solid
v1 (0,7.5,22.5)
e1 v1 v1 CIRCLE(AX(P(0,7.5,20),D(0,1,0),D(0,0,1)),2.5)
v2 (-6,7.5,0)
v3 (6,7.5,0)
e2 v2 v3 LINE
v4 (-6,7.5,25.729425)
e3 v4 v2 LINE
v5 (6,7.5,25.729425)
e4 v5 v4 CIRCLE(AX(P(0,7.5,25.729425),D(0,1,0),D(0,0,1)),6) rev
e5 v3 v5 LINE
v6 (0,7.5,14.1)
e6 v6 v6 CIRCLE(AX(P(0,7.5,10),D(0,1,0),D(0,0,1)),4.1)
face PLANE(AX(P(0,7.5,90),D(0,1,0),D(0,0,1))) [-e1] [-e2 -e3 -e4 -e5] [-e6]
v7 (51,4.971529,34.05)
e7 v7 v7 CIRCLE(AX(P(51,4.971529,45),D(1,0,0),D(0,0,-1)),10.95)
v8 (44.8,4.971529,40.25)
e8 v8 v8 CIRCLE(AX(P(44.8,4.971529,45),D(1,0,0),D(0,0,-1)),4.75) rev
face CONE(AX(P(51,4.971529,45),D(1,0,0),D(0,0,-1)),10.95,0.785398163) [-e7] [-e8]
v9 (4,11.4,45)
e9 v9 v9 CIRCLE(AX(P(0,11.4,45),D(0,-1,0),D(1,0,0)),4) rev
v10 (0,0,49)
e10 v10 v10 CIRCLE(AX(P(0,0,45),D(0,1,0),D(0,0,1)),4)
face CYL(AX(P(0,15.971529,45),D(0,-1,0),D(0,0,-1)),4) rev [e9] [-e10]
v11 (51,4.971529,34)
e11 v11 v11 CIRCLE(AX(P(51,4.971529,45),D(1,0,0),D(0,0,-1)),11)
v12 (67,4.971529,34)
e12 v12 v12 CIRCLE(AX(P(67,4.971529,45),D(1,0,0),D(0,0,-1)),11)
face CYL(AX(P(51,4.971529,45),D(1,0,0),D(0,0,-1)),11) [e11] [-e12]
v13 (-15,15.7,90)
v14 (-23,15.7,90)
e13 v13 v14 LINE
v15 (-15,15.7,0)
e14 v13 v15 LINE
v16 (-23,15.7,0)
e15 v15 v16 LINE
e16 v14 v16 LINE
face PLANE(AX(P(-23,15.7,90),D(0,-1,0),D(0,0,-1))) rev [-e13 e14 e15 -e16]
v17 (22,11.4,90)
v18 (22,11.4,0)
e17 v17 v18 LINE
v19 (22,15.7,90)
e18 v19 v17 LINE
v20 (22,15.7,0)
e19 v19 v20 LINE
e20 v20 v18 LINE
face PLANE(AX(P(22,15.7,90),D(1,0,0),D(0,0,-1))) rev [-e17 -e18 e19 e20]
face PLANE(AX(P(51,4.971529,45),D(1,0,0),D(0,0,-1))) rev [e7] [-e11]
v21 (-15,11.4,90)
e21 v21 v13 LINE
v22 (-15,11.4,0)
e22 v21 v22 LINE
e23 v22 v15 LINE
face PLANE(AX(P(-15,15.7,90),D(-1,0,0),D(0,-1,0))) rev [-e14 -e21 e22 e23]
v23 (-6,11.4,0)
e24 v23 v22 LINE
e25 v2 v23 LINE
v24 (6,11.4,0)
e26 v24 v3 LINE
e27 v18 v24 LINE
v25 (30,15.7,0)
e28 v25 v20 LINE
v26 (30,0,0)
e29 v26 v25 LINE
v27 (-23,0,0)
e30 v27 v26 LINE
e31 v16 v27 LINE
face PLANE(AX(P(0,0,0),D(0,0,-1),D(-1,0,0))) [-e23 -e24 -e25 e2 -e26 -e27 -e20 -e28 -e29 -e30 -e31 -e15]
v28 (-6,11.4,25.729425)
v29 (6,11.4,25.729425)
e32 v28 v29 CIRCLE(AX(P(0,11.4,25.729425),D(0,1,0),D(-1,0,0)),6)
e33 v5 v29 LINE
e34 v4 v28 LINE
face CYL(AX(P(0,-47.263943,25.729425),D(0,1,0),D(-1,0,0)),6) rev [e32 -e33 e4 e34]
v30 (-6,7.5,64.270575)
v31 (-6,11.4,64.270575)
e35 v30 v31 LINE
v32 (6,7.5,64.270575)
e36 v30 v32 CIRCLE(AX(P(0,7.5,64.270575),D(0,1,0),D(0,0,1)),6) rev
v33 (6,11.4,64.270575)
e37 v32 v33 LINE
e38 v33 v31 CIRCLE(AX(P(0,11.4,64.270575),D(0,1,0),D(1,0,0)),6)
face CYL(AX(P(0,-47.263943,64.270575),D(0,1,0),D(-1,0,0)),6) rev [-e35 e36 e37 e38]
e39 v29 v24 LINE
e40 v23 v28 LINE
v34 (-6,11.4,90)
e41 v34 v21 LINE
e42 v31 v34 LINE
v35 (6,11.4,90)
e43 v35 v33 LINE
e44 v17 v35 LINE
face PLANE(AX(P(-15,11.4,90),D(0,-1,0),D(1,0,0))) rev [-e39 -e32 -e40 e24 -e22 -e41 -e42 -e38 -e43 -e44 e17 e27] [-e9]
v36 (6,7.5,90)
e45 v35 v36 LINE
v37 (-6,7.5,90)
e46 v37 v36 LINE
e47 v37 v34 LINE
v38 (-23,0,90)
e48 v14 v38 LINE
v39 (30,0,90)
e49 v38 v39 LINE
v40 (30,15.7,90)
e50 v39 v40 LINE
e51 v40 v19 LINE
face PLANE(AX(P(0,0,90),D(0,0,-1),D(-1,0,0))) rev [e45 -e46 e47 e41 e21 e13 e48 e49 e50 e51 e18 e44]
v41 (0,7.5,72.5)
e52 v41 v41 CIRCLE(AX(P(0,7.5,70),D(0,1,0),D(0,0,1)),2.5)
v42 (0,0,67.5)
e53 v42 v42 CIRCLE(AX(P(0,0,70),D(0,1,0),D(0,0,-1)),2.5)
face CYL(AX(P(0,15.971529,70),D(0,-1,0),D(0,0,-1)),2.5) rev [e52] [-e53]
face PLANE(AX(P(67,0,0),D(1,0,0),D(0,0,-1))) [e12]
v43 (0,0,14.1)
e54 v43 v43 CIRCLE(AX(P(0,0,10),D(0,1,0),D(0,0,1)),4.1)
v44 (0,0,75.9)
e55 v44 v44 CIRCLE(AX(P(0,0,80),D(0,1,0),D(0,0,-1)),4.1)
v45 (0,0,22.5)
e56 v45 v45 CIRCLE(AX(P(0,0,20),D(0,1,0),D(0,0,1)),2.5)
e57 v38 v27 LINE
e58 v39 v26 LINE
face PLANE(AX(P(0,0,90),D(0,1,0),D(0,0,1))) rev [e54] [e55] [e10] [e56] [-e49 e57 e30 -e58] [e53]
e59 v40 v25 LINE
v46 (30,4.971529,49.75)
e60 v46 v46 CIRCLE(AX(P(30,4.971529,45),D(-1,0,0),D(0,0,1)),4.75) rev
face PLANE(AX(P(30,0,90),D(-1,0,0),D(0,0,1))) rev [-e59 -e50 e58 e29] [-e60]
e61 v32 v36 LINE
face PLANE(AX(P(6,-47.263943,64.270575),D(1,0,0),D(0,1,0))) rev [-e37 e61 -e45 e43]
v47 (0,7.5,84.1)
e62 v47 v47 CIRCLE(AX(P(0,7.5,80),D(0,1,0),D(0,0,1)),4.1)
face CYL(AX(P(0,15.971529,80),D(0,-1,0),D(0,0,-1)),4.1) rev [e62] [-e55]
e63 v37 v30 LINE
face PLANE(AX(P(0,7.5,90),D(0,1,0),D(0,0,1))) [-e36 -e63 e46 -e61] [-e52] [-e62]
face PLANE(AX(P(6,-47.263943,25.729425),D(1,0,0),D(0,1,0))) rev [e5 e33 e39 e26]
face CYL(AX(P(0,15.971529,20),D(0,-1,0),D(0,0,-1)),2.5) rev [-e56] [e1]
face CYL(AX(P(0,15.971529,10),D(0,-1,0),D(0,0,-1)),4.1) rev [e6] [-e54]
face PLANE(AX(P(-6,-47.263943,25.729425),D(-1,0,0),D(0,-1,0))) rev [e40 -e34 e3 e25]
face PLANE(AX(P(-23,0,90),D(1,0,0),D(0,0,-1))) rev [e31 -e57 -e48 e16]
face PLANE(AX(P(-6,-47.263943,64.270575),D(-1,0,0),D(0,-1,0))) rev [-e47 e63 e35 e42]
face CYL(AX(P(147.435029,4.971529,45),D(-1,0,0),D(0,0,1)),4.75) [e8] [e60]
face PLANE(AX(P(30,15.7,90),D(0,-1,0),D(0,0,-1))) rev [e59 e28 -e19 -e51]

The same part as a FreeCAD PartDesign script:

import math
import FreeCAD as App
import Part
import Sketcher


def edges_at(feature, points):
    """Names of the edges that pass closest to the given points."""
    edges = feature.Shape.Edges
    near = lambda p: min(range(len(edges)), key=lambda i: edges[i].distToShape(Part.Vertex(*p))[0])
    return sorted({f"Edge{near(p) + 1}" for p in points})

doc = App.newDocument("Part")
params = doc.addObject("Spreadsheet::Sheet", "Params")
for row, (alias, value) in enumerate([
    ("sketch1_width", "8 mm"),
    ("sketch1_width2", "37 mm"),
    ("sketch1_height", "15.7 mm"),
    ("sketch1_height2", "4.3 mm"),
    ("pad1_length", "90 mm"),
    ("sketch2_diameter", "9.5 mm"),
    ("pad2_length", "37 mm"),
    ("sketch3_diameter", "22 mm"),
    ("pad3_length", "16 mm"),
    ("chamfer_size", "6.2 mm"),
    ("sketch4_diameter", "8 mm"),
    ("sketch4_diameter2", "5 mm"),
    ("sketch4_diameter3", "8.2 mm"),
    ("sketch5_radius", "6 mm"),
    ("pocket2_length", "3.9 mm"),
], start=1):
    params.set(f"A{row}", alias)
    params.set(f"B{row}", "=" + value)
    params.setAlias(f"B{row}", alias)

body = doc.addObject("PartDesign::Body", "Body")

# Sketch on XY plane
sketch1 = body.newObject("Sketcher::SketchObject", "Sketch")
sketch1.AttachmentSupport = (doc.getObject("XY_Plane"), [""])
sketch1.MapMode = "FlatFace"
sketch1.addGeometry([
    Part.LineSegment(App.Vector(30, 0, 0), App.Vector(30, 15.7, 0)),  # 0
    Part.LineSegment(App.Vector(30, 15.7, 0), App.Vector(22, 15.7, 0)),  # 1
    Part.LineSegment(App.Vector(22, 15.7, 0), App.Vector(22, 11.4, 0)),  # 2
    Part.LineSegment(App.Vector(22, 11.4, 0), App.Vector(-15, 11.4, 0)),  # 3
    Part.LineSegment(App.Vector(-15, 11.4, 0), App.Vector(-15, 15.7, 0)),  # 4
    Part.LineSegment(App.Vector(-15, 15.7, 0), App.Vector(-23, 15.7, 0)),  # 5
    Part.LineSegment(App.Vector(-23, 15.7, 0), App.Vector(-23, 0, 0)),  # 6
    Part.LineSegment(App.Vector(-23, 0, 0), App.Vector(30, 0, 0)),  # 7
], False)
sketch1.addConstraint([
    Sketcher.Constraint("Coincident", 0, 2, 1, 1),
    Sketcher.Constraint("Coincident", 1, 2, 2, 1),
    Sketcher.Constraint("Coincident", 2, 2, 3, 1),
    Sketcher.Constraint("Coincident", 3, 2, 4, 1),
    Sketcher.Constraint("Coincident", 4, 2, 5, 1),
    Sketcher.Constraint("Coincident", 5, 2, 6, 1),
    Sketcher.Constraint("Coincident", 6, 2, 7, 1),
    Sketcher.Constraint("Coincident", 7, 2, 0, 1),
    Sketcher.Constraint("Vertical", 0),
    Sketcher.Constraint("Horizontal", 1),
    Sketcher.Constraint("Vertical", 2),
    Sketcher.Constraint("Horizontal", 3),
    Sketcher.Constraint("Vertical", 4),
    Sketcher.Constraint("Horizontal", 5),
    Sketcher.Constraint("Vertical", 6),
    Sketcher.Constraint("Horizontal", 7),
    Sketcher.Constraint("PointOnObject", 6, 2, -1),
    Sketcher.Constraint("Horizontal", 1, 2, 4, 2),
    Sketcher.Constraint("Equal", 1, 5),
    Sketcher.Constraint("DistanceX", 1, 2, 1, 1, 8.0),
    Sketcher.Constraint("DistanceX", 3, 2, 3, 1, 37.0),
    Sketcher.Constraint("DistanceY", 0, 1, 0, 2, 15.7),
    Sketcher.Constraint("DistanceY", 2, 2, 2, 1, 4.3),
    Sketcher.Constraint("DistanceX", -1, 1, 0, 2, 30.0),
])
sketch1.setExpression("Constraints[19]", "Params.sketch1_width")
sketch1.setExpression("Constraints[20]", "Params.sketch1_width2")
sketch1.setExpression("Constraints[21]", "Params.sketch1_height")
sketch1.setExpression("Constraints[22]", "Params.sketch1_height2")
pad1 = body.newObject("PartDesign::Pad", "Pad")
pad1.Profile = sketch1
pad1.setExpression("Length", "Params.pad1_length")

# Sketch on YZ plane
sketch2 = body.newObject("Sketcher::SketchObject", "Sketch001")
sketch2.AttachmentSupport = (doc.getObject("YZ_Plane"), [""])
sketch2.MapMode = "FlatFace"
sketch2.AttachmentOffset = App.Placement(App.Vector(0, 0, 30), App.Rotation())
sketch2.addGeometry(Part.Circle(App.Vector(5, 45, 0), App.Vector(0, 0, 1), 4.8), False)
sketch2.addConstraint([
    Sketcher.Constraint("Diameter", 0, 9.5),
    Sketcher.Constraint("DistanceY", -1, 1, 0, 3, 45.0),
    Sketcher.Constraint("DistanceX", -1, 1, 0, 3, 4.971529),
])
sketch2.setExpression("Constraints[0]", "Params.sketch2_diameter")
pad2 = body.newObject("PartDesign::Pad", "Pad001")
pad2.Profile = sketch2
pad2.setExpression("Length", "Params.pad2_length")

# Sketch on YZ plane
sketch3 = body.newObject("Sketcher::SketchObject", "Sketch002")
sketch3.AttachmentSupport = (doc.getObject("YZ_Plane"), [""])
sketch3.MapMode = "FlatFace"
sketch3.AttachmentOffset = App.Placement(App.Vector(0, 0, 67), App.Rotation())
sketch3.addGeometry(Part.Circle(App.Vector(5, 45, 0), App.Vector(0, 0, 1), 11), False)
sketch3.addConstraint([
    Sketcher.Constraint("Diameter", 0, 22.0),
    Sketcher.Constraint("DistanceY", -1, 1, 0, 3, 45.0),
    Sketcher.Constraint("DistanceX", -1, 1, 0, 3, 4.971529),
])
sketch3.setExpression("Constraints[0]", "Params.sketch3_diameter")
pad3 = body.newObject("PartDesign::Pad", "Pad002")
pad3.Profile = sketch3
pad3.setExpression("Length", "Params.pad3_length")
pad3.Reversed = True
doc.recompute()

chamfer = body.newObject("PartDesign::Chamfer", "Chamfer")
chamfer.Base = (pad3, edges_at(pad3, [(51, 4.972, 49.75)]))
chamfer.setExpression("Size", "Params.chamfer_size")

# Sketch on XZ plane
sketch4 = body.newObject("Sketcher::SketchObject", "Sketch003")
sketch4.AttachmentSupport = (doc.getObject("XZ_Plane"), [""])
sketch4.MapMode = "FlatFace"
sketch4.addGeometry([
    Part.Circle(App.Vector(0, 45, 0), App.Vector(0, 0, 1), 4),  # 0
    Part.Circle(App.Vector(0, 20, 0), App.Vector(0, 0, 1), 2.5),  # 1
    Part.Circle(App.Vector(0, 70, 0), App.Vector(0, 0, 1), 2.5),  # 2
    Part.Circle(App.Vector(0, 10, 0), App.Vector(0, 0, 1), 4.1),  # 3
    Part.Circle(App.Vector(0, 80, 0), App.Vector(0, 0, 1), 4.1),  # 4
], False)
sketch4.addConstraint([
    Sketcher.Constraint("Equal", 1, 2),
    Sketcher.Constraint("Equal", 3, 4),
    Sketcher.Constraint("PointOnObject", 0, 3, -2),
    Sketcher.Constraint("PointOnObject", 1, 3, -2),
    Sketcher.Constraint("PointOnObject", 2, 3, -2),
    Sketcher.Constraint("PointOnObject", 3, 3, -2),
    Sketcher.Constraint("PointOnObject", 4, 3, -2),
    Sketcher.Constraint("Diameter", 0, 8.0),
    Sketcher.Constraint("Diameter", 1, 5.0),
    Sketcher.Constraint("Diameter", 3, 8.2),
    Sketcher.Constraint("DistanceY", -1, 1, 0, 3, 45.0),
    Sketcher.Constraint("DistanceY", -1, 1, 1, 3, 20.0),
    Sketcher.Constraint("DistanceY", -1, 1, 2, 3, 70.0),
    Sketcher.Constraint("DistanceY", -1, 1, 3, 3, 10.0),
    Sketcher.Constraint("DistanceY", -1, 1, 4, 3, 80.0),
])
sketch4.setExpression("Constraints[7]", "Params.sketch4_diameter")
sketch4.setExpression("Constraints[8]", "Params.sketch4_diameter2")
sketch4.setExpression("Constraints[9]", "Params.sketch4_diameter3")
pocket1 = body.newObject("PartDesign::Pocket", "Pocket")
pocket1.Profile = sketch4
pocket1.Type = "ThroughAll"

# Sketch on XZ plane
sketch5 = body.newObject("Sketcher::SketchObject", "Sketch004")
sketch5.AttachmentSupport = (doc.getObject("XZ_Plane"), [""])
sketch5.MapMode = "FlatFace"
sketch5.AttachmentOffset = App.Placement(App.Vector(0, 0, -11.4), App.Rotation())
sketch5.addGeometry([
    Part.LineSegment(App.Vector(-6, -8, 0), App.Vector(-6, 26, 0)),  # 0
    Part.ArcOfCircle(Part.Circle(App.Vector(0, 26, 0), App.Vector(0, 0, 1), 6), math.radians(0), math.radians(180)),  # 1
    Part.LineSegment(App.Vector(6, 26, 0), App.Vector(6, -8, 0)),  # 2
    Part.ArcOfCircle(Part.Circle(App.Vector(0, -8, 0), App.Vector(0, 0, 1), 6), math.radians(180), math.radians(360)),  # 3
    Part.LineSegment(App.Vector(-6, 64, 0), App.Vector(-6, 98, 0)),  # 4
    Part.ArcOfCircle(Part.Circle(App.Vector(0, 98, 0), App.Vector(0, 0, 1), 6), math.radians(0), math.radians(180)),  # 5
    Part.LineSegment(App.Vector(6, 98, 0), App.Vector(6, 64, 0)),  # 6
    Part.ArcOfCircle(Part.Circle(App.Vector(0, 64, 0), App.Vector(0, 0, 1), 6), math.radians(180), math.radians(360)),  # 7
], False)
sketch5.addConstraint([
    Sketcher.Constraint("Tangent", 0, 2, 1, 2),
    Sketcher.Constraint("Tangent", 1, 1, 2, 1),
    Sketcher.Constraint("Tangent", 2, 2, 3, 2),
    Sketcher.Constraint("Tangent", 3, 1, 0, 1),
    Sketcher.Constraint("Tangent", 4, 2, 5, 2),
    Sketcher.Constraint("Tangent", 5, 1, 6, 1),
    Sketcher.Constraint("Tangent", 6, 2, 7, 2),
    Sketcher.Constraint("Tangent", 7, 1, 4, 1),
    Sketcher.Constraint("Vertical", 0),
    Sketcher.Constraint("Vertical", 2),
    Sketcher.Constraint("Vertical", 4),
    Sketcher.Constraint("Vertical", 6),
    Sketcher.Constraint("Equal", 3, 5),
    Sketcher.Constraint("PointOnObject", 1, 3, -2),
    Sketcher.Constraint("PointOnObject", 5, 3, -2),
    Sketcher.Constraint("Equal", 2, 4),
    Sketcher.Constraint("Radius", 1, 6.0),
    Sketcher.Constraint("DistanceY", 0, 1, 0, 2, 33.715209),
    Sketcher.Constraint("DistanceY", 1, 3, 5, 3, 72.256359),
    Sketcher.Constraint("DistanceY", -1, 1, 1, 3, 25.729425),
])
sketch5.setExpression("Constraints[16]", "Params.sketch5_radius")
pocket2 = body.newObject("PartDesign::Pocket", "Pocket001")
pocket2.Profile = sketch5
pocket2.setExpression("Length", "Params.pocket2_length")
pocket2.Reversed = True

doc.recompute()
